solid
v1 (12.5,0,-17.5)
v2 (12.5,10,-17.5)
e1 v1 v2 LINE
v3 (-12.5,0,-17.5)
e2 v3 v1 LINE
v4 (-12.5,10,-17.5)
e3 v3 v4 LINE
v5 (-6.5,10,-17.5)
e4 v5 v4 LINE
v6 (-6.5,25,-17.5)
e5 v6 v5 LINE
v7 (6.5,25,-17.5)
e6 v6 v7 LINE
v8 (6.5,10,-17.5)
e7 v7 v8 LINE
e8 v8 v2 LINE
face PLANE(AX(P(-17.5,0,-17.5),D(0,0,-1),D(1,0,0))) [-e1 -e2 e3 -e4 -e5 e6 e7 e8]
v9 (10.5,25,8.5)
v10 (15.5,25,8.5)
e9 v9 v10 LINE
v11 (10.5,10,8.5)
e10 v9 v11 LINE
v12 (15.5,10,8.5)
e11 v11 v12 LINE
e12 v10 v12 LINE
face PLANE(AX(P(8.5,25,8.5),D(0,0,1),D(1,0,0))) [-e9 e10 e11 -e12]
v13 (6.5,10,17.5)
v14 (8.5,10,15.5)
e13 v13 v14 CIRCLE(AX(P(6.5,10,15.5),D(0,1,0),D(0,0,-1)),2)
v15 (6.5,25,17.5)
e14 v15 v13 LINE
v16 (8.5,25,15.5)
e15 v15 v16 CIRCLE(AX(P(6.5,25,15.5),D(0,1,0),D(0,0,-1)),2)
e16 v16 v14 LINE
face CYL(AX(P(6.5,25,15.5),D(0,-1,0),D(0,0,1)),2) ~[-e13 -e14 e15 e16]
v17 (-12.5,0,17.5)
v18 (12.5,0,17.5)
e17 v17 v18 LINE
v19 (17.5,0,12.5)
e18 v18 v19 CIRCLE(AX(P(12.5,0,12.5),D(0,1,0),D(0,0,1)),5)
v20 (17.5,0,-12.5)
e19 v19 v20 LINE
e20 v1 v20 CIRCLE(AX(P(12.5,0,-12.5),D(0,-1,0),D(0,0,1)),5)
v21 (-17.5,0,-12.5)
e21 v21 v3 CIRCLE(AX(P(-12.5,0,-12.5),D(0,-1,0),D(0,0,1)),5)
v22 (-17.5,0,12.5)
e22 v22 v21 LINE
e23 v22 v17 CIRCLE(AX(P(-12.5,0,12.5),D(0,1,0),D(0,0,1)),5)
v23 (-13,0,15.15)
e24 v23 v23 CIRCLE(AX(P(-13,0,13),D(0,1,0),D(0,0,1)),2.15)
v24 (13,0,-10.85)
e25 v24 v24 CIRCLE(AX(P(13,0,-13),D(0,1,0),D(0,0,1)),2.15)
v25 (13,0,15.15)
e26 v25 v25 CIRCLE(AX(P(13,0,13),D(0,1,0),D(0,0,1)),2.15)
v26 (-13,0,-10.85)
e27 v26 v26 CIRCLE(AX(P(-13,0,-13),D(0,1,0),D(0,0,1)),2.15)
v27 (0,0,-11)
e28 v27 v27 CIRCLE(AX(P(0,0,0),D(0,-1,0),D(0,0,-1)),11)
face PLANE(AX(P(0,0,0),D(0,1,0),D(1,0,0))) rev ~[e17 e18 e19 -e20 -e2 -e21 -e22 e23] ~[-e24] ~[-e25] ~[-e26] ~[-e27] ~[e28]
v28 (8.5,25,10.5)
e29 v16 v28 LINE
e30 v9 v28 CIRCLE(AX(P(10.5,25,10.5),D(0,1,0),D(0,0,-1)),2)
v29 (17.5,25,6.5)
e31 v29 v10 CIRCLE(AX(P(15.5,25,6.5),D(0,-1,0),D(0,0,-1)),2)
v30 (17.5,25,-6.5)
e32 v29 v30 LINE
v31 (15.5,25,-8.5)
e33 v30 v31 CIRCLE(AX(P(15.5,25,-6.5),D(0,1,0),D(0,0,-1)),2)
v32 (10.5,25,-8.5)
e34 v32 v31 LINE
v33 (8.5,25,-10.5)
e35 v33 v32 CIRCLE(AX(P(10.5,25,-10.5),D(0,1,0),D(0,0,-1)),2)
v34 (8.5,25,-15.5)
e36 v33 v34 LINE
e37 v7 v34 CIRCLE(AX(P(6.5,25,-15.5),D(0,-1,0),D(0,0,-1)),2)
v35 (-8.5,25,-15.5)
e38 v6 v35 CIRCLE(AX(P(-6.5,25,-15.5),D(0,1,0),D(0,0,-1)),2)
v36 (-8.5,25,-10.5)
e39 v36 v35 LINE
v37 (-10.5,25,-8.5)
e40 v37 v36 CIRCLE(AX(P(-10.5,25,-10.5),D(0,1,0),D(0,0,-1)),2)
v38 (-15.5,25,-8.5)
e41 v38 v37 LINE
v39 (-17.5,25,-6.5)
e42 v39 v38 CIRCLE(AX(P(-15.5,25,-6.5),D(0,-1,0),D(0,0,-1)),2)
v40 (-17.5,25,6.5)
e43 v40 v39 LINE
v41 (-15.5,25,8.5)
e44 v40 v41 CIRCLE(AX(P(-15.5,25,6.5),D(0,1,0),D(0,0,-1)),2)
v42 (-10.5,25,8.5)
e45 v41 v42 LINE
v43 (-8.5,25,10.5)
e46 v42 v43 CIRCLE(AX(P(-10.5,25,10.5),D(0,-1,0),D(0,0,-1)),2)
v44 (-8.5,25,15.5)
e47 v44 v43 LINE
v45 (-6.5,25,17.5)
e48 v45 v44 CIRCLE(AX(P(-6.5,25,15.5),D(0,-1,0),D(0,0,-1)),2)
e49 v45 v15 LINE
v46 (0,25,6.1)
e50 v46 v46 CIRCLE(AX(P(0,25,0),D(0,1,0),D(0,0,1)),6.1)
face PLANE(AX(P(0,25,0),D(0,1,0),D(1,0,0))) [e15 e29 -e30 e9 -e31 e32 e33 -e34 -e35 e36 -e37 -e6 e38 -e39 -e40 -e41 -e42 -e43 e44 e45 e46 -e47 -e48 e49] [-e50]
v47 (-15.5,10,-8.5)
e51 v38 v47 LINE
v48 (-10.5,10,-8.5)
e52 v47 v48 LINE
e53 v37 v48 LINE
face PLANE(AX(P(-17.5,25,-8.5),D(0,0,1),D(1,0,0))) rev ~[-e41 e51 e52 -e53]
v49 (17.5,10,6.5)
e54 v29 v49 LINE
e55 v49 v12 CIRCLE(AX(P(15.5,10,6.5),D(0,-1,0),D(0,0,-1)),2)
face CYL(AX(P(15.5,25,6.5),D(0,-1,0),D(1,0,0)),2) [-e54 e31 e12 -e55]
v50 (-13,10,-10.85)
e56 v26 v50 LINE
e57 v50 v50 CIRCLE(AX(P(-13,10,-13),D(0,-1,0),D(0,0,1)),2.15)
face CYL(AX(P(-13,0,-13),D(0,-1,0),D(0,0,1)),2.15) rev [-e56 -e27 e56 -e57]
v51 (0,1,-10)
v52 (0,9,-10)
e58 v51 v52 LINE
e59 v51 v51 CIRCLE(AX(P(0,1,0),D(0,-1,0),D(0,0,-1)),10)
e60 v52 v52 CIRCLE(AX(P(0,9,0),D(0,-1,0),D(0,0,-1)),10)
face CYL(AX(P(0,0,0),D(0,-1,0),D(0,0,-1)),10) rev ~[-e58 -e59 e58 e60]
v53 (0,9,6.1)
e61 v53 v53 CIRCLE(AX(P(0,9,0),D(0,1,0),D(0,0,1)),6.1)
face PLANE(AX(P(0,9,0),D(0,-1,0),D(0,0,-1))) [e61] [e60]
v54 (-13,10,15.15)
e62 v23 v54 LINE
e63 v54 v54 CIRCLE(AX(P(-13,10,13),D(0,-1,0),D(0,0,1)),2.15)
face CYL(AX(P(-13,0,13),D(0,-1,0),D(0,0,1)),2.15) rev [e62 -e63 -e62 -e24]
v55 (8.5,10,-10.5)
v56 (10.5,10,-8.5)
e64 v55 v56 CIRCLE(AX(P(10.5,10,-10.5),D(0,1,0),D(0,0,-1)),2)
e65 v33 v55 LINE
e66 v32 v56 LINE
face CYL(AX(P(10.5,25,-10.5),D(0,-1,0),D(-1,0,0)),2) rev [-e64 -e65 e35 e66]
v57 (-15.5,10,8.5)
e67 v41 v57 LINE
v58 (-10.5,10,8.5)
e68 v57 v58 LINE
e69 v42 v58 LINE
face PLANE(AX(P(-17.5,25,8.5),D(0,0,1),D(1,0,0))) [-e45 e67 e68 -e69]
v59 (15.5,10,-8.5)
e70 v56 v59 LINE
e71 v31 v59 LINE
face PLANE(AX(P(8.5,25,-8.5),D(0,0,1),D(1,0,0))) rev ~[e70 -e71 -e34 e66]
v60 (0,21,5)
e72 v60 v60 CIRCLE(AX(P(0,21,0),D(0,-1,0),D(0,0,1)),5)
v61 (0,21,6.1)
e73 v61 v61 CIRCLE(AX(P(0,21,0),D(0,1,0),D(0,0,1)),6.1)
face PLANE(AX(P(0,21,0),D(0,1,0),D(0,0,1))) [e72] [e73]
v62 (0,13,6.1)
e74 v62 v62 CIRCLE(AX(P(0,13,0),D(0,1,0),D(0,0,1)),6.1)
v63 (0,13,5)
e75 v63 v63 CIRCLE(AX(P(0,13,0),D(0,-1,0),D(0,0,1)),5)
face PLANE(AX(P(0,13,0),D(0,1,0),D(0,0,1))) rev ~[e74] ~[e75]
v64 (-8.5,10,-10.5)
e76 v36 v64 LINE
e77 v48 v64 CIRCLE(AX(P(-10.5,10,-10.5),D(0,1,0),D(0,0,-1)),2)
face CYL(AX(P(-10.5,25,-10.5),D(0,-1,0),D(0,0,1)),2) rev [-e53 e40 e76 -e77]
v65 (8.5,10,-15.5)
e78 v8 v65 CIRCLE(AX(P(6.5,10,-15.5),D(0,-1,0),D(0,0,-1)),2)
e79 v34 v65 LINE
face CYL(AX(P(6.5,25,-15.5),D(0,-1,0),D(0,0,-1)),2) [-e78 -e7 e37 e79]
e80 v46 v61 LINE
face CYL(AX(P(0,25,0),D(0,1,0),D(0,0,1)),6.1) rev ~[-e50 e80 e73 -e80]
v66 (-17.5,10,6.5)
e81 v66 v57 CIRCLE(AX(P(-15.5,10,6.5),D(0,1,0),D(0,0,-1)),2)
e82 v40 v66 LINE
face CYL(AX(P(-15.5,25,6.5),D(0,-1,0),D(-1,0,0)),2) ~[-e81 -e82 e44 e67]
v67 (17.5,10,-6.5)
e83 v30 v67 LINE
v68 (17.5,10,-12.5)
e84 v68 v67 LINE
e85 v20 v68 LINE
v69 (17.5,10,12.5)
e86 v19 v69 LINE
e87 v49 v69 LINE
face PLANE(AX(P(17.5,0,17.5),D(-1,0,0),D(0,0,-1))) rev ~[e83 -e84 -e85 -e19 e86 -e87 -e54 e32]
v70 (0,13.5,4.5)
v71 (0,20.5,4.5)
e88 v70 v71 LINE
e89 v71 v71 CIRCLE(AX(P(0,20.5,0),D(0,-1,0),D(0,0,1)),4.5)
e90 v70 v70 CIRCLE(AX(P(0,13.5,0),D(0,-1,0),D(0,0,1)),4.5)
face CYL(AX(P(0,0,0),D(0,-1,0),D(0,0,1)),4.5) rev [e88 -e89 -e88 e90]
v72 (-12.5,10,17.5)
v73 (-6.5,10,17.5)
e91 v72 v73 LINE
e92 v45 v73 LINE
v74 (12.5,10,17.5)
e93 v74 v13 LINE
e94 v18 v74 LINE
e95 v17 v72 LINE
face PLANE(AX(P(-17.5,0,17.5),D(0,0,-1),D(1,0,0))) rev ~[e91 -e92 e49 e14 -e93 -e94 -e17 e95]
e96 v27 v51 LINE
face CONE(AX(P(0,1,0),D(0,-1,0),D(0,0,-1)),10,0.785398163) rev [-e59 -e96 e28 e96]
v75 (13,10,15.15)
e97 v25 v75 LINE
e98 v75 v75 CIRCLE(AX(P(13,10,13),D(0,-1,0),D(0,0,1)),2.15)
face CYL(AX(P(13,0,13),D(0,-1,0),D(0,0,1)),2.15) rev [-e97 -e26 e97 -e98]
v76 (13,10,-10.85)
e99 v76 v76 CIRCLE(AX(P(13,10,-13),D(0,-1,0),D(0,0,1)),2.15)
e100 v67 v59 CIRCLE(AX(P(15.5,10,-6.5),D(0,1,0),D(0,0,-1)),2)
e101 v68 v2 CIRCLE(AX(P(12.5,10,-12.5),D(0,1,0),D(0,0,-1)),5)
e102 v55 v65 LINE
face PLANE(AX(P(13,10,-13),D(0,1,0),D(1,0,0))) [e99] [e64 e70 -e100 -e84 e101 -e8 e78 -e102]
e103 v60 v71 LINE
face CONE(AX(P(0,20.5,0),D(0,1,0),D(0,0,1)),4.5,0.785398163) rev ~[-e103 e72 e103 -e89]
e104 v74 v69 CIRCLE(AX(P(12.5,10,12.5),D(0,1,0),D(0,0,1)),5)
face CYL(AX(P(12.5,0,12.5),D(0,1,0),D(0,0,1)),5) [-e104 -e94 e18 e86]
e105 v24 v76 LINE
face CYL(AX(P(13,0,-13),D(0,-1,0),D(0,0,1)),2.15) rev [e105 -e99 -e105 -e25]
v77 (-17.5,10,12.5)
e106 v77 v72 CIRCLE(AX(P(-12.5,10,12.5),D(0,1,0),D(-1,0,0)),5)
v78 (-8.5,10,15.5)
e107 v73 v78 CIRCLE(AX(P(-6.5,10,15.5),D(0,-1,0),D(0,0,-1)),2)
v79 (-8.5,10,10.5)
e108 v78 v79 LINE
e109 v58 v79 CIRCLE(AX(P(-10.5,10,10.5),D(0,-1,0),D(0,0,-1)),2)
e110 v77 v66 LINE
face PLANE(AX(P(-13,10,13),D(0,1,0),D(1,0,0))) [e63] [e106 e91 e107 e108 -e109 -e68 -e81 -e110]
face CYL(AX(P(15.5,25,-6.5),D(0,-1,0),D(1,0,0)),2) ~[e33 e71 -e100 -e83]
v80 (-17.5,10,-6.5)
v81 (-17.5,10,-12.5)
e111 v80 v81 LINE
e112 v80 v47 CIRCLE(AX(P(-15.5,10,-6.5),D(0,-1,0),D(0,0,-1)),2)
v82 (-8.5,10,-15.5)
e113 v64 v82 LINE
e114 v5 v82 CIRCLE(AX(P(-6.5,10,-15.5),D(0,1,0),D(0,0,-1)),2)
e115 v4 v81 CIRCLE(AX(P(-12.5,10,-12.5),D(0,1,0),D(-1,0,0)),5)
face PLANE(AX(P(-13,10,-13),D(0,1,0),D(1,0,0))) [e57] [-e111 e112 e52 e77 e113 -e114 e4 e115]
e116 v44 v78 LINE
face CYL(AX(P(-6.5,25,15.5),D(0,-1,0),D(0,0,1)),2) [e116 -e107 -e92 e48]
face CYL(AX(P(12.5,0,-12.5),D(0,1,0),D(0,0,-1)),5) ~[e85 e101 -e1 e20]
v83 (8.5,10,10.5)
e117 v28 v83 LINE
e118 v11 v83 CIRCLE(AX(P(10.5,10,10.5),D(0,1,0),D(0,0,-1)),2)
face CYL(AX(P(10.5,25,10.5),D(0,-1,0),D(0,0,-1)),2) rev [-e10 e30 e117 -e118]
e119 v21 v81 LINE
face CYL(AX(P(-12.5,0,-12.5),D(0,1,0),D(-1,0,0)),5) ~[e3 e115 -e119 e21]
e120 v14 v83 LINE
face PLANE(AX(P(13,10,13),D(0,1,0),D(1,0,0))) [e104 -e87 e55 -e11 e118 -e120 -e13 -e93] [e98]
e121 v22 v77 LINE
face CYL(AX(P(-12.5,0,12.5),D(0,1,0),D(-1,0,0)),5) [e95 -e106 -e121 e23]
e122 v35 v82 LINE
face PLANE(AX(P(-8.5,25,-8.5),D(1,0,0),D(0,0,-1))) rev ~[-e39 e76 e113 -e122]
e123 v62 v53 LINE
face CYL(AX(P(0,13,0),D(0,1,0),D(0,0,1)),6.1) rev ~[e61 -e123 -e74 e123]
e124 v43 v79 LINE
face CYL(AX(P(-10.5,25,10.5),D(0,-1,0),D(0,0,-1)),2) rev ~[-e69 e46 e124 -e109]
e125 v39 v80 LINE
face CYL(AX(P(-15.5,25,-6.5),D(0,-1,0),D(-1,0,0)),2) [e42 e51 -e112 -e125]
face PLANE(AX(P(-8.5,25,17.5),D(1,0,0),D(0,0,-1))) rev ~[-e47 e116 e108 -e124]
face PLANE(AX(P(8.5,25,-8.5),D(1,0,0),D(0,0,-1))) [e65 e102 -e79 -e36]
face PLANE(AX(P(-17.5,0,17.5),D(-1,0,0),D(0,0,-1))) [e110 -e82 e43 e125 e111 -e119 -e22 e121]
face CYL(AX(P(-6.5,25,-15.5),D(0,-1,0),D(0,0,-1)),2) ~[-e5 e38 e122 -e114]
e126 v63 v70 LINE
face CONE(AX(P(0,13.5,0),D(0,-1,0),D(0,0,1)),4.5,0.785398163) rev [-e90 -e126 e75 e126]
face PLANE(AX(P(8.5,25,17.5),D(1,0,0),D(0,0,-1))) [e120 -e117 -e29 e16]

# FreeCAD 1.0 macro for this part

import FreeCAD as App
import Part
import Sketcher

V = App.Vector
Q = App.Units.Quantity


def edges_at(feature, points):
    """Names of the edges that pass closest to the given points."""
    edges = feature.Shape.Edges
    near = lambda p: min(range(len(edges)), key=lambda i: edges[i].distToShape(Part.Vertex(*p))[0])
    return sorted({f"Edge{near(p) + 1}" for p in points})


def add_polygon(sketch, points):
    """Adds a closed chain of lines whose ends are joined by coincident constraints."""
    first, n = sketch.GeometryCount, len(points)
    for a, b in zip(points, points[1:] + points[:1]):
        sketch.addGeometry(Part.LineSegment(App.Vector(*a, 0), App.Vector(*b, 0)), False)
    for i in range(n):
        sketch.addConstraint(Sketcher.Constraint("Coincident", first + i, 2, first + (i + 1) % n, 1))

doc = App.newDocument("Part")
body = doc.addObject("PartDesign::Body", "Body")

sketch1 = doc.addObject("Sketcher::SketchObject", "Sketch")
body.addObject(sketch1)
sketch1.AttachmentSupport = (doc.XZ_Plane, [""])
sketch1.MapMode = "FlatFace"
add_polygon(sketch1, [(-17.5, -17.5), (-17.5, 17.5), (17.5, 17.5), (17.5, -17.5)])
sketch1.addGeometry(Part.Circle(V(-13, 13, 0), V(0, 0, 1), 2.1), False)
sketch1.addGeometry(Part.Circle(V(0, 0, 0), V(0, 0, 1), 4.5), False)
sketch1.addGeometry(Part.Circle(V(13, 13, 0), V(0, 0, 1), 2.1), False)
sketch1.addGeometry(Part.Circle(V(-13, -13, 0), V(0, 0, 1), 2.1), False)
sketch1.addGeometry(Part.Circle(V(13, -13, 0), V(0, 0, 1), 2.1), False)
sketch1.addConstraint([
    Sketcher.Constraint("Vertical", 0),
    Sketcher.Constraint("Horizontal", 1),
    Sketcher.Constraint("Vertical", 2),
    Sketcher.Constraint("Horizontal", 3),
    Sketcher.Constraint("Coincident", 5, 3, -1, 1),
    Sketcher.Constraint("Equal", 4, 6),
    Sketcher.Constraint("Equal", 6, 7),
    Sketcher.Constraint("Equal", 7, 8),
    Sketcher.Constraint("Symmetric", 6, 3, 7, 3, -1, 1),
    Sketcher.Constraint("Symmetric", 4, 3, 8, 3, -1, 1),
    Sketcher.Constraint("Symmetric", 0, 2, 2, 2, -1, 1),
    Sketcher.Constraint("Symmetric", 4, 3, 6, 3, -2),
    Sketcher.Constraint("Equal", 3, 0),
    Sketcher.Constraint("Diameter", 5, Q("9 mm")),
    Sketcher.Constraint("Diameter", 4, Q("4.3 mm")),
    Sketcher.Constraint("DistanceX", 1, 1, 1, 2, Q("35 mm")),
    Sketcher.Constraint("DistanceX", 4, 3, -1, 1, Q("13 mm")),
    Sketcher.Constraint("DistanceY", -1, 1, 4, 3, Q("13 mm")),
])
pad1 = doc.addObject("PartDesign::Pad", "Pad")
body.addObject(pad1)
pad1.Profile = sketch1
pad1.Length = 25
pad1.Reversed = True
doc.recompute()

fillet = doc.addObject("PartDesign::Fillet", "Fillet")
body.addObject(fillet)
fillet.Base = (pad1, edges_at(pad1, [
    (17.5, 12.5, 17.5),
    (-17.5, 12.5, 17.5),
    (-17.5, 12.5, -17.5),
    (17.5, 12.5, -17.5),
]))
fillet.Radius = 5

sketch2 = doc.addObject("Sketcher::SketchObject", "Sketch001")
body.addObject(sketch2)
sketch2.AttachmentSupport = (doc.XZ_Plane, [""])
sketch2.MapMode = "FlatFace"
sketch2.AttachmentOffset = App.Placement(V(0, 0, -25), App.Rotation())
sketch2.addGeometry(Part.Circle(V(0, 0, 0), V(0, 0, 1), 6), False)
sketch2.addConstraint([
    Sketcher.Constraint("Coincident", 0, 3, -1, 1),
    Sketcher.Constraint("Diameter", 0, Q("12.2 mm")),
])
pocket1 = doc.addObject("PartDesign::Pocket", "Pocket")
body.addObject(pocket1)
pocket1.Profile = sketch2
pocket1.Length = 4
pocket1.Reversed = True

sketch3 = doc.addObject("Sketcher::SketchObject", "Sketch002")
body.addObject(sketch3)
sketch3.AttachmentSupport = (doc.XZ_Plane, [""])
sketch3.MapMode = "FlatFace"
sketch3.AttachmentOffset = App.Placement(V(0, 0, -13), App.Rotation())
sketch3.addGeometry(Part.Circle(V(0, 0, 0), V(0, 0, 1), 6), False)
sketch3.addConstraint([
    Sketcher.Constraint("Coincident", 0, 3, -1, 1),
    Sketcher.Constraint("Diameter", 0, Q("12.2 mm")),
])
pocket2 = doc.addObject("PartDesign::Pocket", "Pocket001")
body.addObject(pocket2)
pocket2.Profile = sketch3
pocket2.Length = 4
pocket2.Reversed = True

sketch4 = doc.addObject("Sketcher::SketchObject", "Sketch003")
body.addObject(sketch4)
sketch4.AttachmentSupport = (doc.XZ_Plane, [""])
sketch4.MapMode = "FlatFace"
sketch4.addGeometry(Part.Circle(V(0, 0, 0), V(0, 0, 1), 10), False)
sketch4.addConstraint([
    Sketcher.Constraint("Coincident", 0, 3, -1, 1),
    Sketcher.Constraint("Diameter", 0, Q("20 mm")),
])
pocket3 = doc.addObject("PartDesign::Pocket", "Pocket002")
body.addObject(pocket3)
pocket3.Profile = sketch4
pocket3.Length = 9

sketch5 = doc.addObject("Sketcher::SketchObject", "Sketch004")
body.addObject(sketch5)
sketch5.AttachmentSupport = (doc.XZ_Plane, [""])
sketch5.MapMode = "FlatFace"
sketch5.AttachmentOffset = App.Placement(V(0, 0, -25), App.Rotation())
add_polygon(sketch5, [(-18, -18), (-18, -8), (-8, -8), (-8, -18)])
add_polygon(sketch5, [(8, -18), (8, -8), (18, -8), (18, -18)])
add_polygon(sketch5, [(8, 8), (8, 18), (18, 18), (18, 8)])
add_polygon(sketch5, [(-18, 8), (-18, 18), (-8, 18), (-8, 8)])
sketch5.addConstraint([
    Sketcher.Constraint("Vertical", 0),
    Sketcher.Constraint("Horizontal", 1),
    Sketcher.Constraint("Vertical", 2),
    Sketcher.Constraint("Horizontal", 3),
    Sketcher.Constraint("Vertical", 4),
    Sketcher.Constraint("Horizontal", 5),
    Sketcher.Constraint("Vertical", 6),
    Sketcher.Constraint("Horizontal", 7),
    Sketcher.Constraint("Vertical", 8),
    Sketcher.Constraint("Horizontal", 9),
    Sketcher.Constraint("Vertical", 10),
    Sketcher.Constraint("Horizontal", 11),
    Sketcher.Constraint("Vertical", 12),
    Sketcher.Constraint("Horizontal", 13),
    Sketcher.Constraint("Vertical", 14),
    Sketcher.Constraint("Horizontal", 15),
    Sketcher.Constraint("Symmetric", 2, 2, 8, 2, -1, 1),
    Sketcher.Constraint("Symmetric", 0, 2, 10, 2, -1, 1),
    Sketcher.Constraint("Symmetric", 6, 2, 12, 2, -1, 1),
    Sketcher.Constraint("Symmetric", 4, 2, 14, 2, -1, 1),
    Sketcher.Constraint("Symmetric", 1, 2, 4, 2, -2),
    Sketcher.Constraint("Symmetric", 3, 2, 6, 2, -2),
    Sketcher.Constraint("Equal", 15, 0),
    Sketcher.Constraint("DistanceX", 1, 1, 1, 2, Q("9 mm")),
    Sketcher.Constraint("DistanceX", 1, 2, 4, 2, Q("17 mm")),
    Sketcher.Constraint("DistanceY", 4, 2, 8, 2, Q("26 mm")),
])
pocket4 = doc.addObject("PartDesign::Pocket", "Pocket003")
body.addObject(pocket4)
pocket4.Profile = sketch5
pocket4.Length = 15
pocket4.Reversed = True
doc.recompute()

fillet2 = doc.addObject("PartDesign::Fillet", "Fillet001")
body.addObject(fillet2)
fillet2.Base = (pocket4, edges_at(pocket4, [
    (-17.5, 17.5, 8.5),
    (-8.5, 17.5, 8.5),
    (-8.5, 17.5, 17.5),
    (8.5, 17.5, 17.5),
    (8.5, 17.5, 8.5),
    (17.5, 17.5, 8.5),
    (17.5, 17.5, -8.5),
    (8.5, 17.5, -8.5),
    (8.5, 17.5, -17.5),
    (-8.5, 17.5, -17.5),
    (-8.5, 17.5, -8.5),
    (-17.5, 17.5, -8.5),
]))
fillet2.Radius = 2
doc.recompute()

chamfer = doc.addObject("PartDesign::Chamfer", "Chamfer")
body.addObject(chamfer)
chamfer.Base = (fillet2, edges_at(fillet2, [(0, 0, 10)]))
chamfer.Size = 1
doc.recompute()

chamfer2 = doc.addObject("PartDesign::Chamfer", "Chamfer001")
body.addObject(chamfer2)
chamfer2.Base = (chamfer, edges_at(chamfer, [(0, 21, -4.5), (0, 13, -4.5)]))
chamfer2.Size = 0.5

doc.recompute()
